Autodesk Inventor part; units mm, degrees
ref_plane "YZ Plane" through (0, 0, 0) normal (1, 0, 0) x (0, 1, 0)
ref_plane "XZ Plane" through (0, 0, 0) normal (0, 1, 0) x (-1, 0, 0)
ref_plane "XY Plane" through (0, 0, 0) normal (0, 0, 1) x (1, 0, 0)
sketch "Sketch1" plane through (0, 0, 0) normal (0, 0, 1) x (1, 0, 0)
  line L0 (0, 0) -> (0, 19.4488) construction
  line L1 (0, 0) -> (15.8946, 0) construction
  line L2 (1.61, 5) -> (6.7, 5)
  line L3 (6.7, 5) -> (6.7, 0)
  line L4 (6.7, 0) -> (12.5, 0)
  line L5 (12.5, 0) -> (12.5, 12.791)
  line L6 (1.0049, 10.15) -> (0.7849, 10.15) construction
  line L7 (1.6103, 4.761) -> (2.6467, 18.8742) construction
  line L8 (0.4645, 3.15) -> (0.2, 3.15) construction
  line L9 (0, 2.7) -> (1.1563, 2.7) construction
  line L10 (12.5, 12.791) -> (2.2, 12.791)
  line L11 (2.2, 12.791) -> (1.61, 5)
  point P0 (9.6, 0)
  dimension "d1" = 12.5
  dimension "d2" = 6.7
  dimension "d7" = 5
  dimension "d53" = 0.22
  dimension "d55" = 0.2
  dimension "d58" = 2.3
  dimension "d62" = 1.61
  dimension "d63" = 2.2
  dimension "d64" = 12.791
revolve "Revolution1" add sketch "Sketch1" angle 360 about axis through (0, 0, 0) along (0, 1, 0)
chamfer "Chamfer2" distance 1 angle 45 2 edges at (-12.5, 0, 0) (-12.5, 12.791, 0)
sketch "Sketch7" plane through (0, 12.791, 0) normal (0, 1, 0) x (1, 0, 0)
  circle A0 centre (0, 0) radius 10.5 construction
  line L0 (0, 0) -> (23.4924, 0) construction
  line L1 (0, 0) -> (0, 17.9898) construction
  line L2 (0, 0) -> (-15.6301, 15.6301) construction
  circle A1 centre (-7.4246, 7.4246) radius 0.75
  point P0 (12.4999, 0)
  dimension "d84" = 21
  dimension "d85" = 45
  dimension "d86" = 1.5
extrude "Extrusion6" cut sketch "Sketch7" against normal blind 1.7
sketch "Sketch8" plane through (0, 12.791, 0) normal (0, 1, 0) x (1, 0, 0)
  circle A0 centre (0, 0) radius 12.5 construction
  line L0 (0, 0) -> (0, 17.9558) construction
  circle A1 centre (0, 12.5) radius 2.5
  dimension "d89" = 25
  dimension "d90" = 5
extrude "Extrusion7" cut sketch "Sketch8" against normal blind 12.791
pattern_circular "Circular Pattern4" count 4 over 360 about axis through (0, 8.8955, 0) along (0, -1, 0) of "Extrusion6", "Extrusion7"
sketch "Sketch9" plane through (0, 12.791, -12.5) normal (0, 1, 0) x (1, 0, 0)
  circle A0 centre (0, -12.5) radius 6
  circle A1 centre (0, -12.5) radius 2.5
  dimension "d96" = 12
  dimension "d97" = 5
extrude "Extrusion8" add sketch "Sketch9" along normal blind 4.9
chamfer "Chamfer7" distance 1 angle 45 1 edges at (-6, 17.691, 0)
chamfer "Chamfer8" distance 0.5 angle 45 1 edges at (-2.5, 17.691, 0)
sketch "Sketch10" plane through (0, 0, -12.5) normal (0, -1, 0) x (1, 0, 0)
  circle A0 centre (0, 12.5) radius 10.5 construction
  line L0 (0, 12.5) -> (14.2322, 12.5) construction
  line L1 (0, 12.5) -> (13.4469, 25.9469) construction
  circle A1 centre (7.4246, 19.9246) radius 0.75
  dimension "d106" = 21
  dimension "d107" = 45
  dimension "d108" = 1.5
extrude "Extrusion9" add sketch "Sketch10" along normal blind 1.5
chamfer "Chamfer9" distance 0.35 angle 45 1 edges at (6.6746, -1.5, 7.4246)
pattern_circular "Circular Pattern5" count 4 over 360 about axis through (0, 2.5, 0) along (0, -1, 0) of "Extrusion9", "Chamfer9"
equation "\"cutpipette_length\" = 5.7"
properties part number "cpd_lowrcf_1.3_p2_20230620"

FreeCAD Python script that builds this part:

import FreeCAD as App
import Part
import Sketcher

V = App.Vector


def edges_at(feature, points):
    """Names of the edges that pass closest to the given points."""
    edges = feature.Shape.Edges
    near = lambda p: min(range(len(edges)), key=lambda i: edges[i].distToShape(Part.Vertex(*p))[0])
    return sorted({f"Edge{near(p) + 1}" for p in points})


def add_polygon(sketch, points):
    """Adds a closed chain of lines whose ends are joined by coincident constraints."""
    first, n = sketch.GeometryCount, len(points)
    for a, b in zip(points, points[1:] + points[:1]):
        sketch.addGeometry(Part.LineSegment(App.Vector(*a, 0), App.Vector(*b, 0)), False)
    for i in range(n):
        sketch.addConstraint(Sketcher.Constraint("Coincident", first + i, 2, first + (i + 1) % n, 1))

doc = App.newDocument("Part")
params = doc.addObject("Spreadsheet::Sheet", "Params")
for row, (alias, value) in enumerate([
    ("sketch1_height", "5 mm"),
    ("revolution_angle", "360 deg"),
    ("chamfer_size", "1 mm"),
    ("sketch2_diameter", "1.5 mm"),
    ("pocket1_length", "1.7 mm"),
    ("sketch3_diameter", "5 mm"),
    ("pocket2_length", "12.791 mm"),
    ("sketch4_diameter", "12 mm"),
    ("sketch4_diameter2", "5 mm"),
    ("pad1_length", "4.9 mm"),
    ("chamfer2_size", "1 mm"),
    ("chamfer3_size", "0.5 mm"),
    ("sketch5_diameter", "1.5 mm"),
    ("pad2_length", "1.5 mm"),
    ("chamfer4_size", "0.35 mm"),
], start=1):
    params.set(f"A{row}", alias)
    params.set(f"B{row}", "=" + value)
    params.setAlias(f"B{row}", alias)

body = doc.addObject("PartDesign::Body", "Body")

sketch1 = body.newObject("Sketcher::SketchObject", "Sketch")
sketch1.AttachmentSupport = (doc.getObject("XY_Plane"), [""])
sketch1.MapMode = "FlatFace"
add_polygon(sketch1, [(2, 13), (2, 5), (7, 5), (7, 0), (12, 0), (12, 13)])
sketch1.addConstraint([
    Sketcher.Constraint("Horizontal", 1),
    Sketcher.Constraint("Vertical", 2),
    Sketcher.Constraint("Horizontal", 3),
    Sketcher.Constraint("Vertical", 4),
    Sketcher.Constraint("Horizontal", 5),
    Sketcher.Constraint("PointOnObject", 2, 2, -1),
    Sketcher.Constraint("DistanceY", 2, 2, 2, 1, 5.0),
    Sketcher.Constraint("DistanceX", -1, 1, 1, 2, 6.7),
    Sketcher.Constraint("DistanceX", -1, 1, 3, 2, 12.5),
    Sketcher.Constraint("DistanceX", -1, 1, 5, 2, 2.2),
    Sketcher.Constraint("DistanceY", 4, 1, 4, 2, 12.791),
    Sketcher.Constraint("DistanceX", -1, 1, 0, 2, 1.61),
])
sketch1.setExpression("Constraints[12]", "Params.sketch1_height")
revolution = body.newObject("PartDesign::Revolution", "Revolution")
revolution.Profile = sketch1
revolution.ReferenceAxis = (sketch1, ["V_Axis"])
revolution.setExpression("Angle", "Params.revolution_angle")
doc.recompute()

chamfer = body.newObject("PartDesign::Chamfer", "Chamfer")
chamfer.Base = (revolution, edges_at(revolution, [(-12.5, 0, 0), (-12.5, 12.791, 0)]))
chamfer.setExpression("Size", "Params.chamfer_size")

sketch2 = body.newObject("Sketcher::SketchObject", "Sketch001")
sketch2.AttachmentSupport = (doc.getObject("XZ_Plane"), [""])
sketch2.MapMode = "FlatFace"
sketch2.AttachmentOffset = App.Placement(V(0, 0, -12.791), App.Rotation())
sketch2.addGeometry(Part.Circle(V(-7.4, -7.4, 0), V(0, 0, 1), 0.8), False)
sketch2.addConstraint([
    Sketcher.Constraint("Diameter", 0, 1.5),
    Sketcher.Constraint("DistanceX", 0, 3, -1, 1, 7.4246),
    Sketcher.Constraint("DistanceY", 0, 3, -1, 1, 7.4246),
])
sketch2.setExpression("Constraints[0]", "Params.sketch2_diameter")
pocket1 = body.newObject("PartDesign::Pocket", "Pocket")
pocket1.Profile = sketch2
pocket1.setExpression("Length", "Params.pocket1_length")
pocket1.Reversed = True

sketch3 = body.newObject("Sketcher::SketchObject", "Sketch002")
sketch3.AttachmentSupport = (doc.getObject("XZ_Plane"), [""])
sketch3.MapMode = "FlatFace"
sketch3.AttachmentOffset = App.Placement(V(0, 0, -12.791), App.Rotation())
sketch3.addGeometry(Part.Circle(V(0, -12.5, 0), V(0, 0, 1), 2.5), False)
sketch3.addConstraint([
    Sketcher.Constraint("PointOnObject", 0, 3, -2),
    Sketcher.Constraint("Diameter", 0, 5.0),
    Sketcher.Constraint("DistanceY", 0, 3, -1, 1, 12.5),
])
sketch3.setExpression("Constraints[1]", "Params.sketch3_diameter")
pocket2 = body.newObject("PartDesign::Pocket", "Pocket001")
pocket2.Profile = sketch3
pocket2.setExpression("Length", "Params.pocket2_length")
pocket2.Reversed = True
doc.recompute()

polarpattern = body.newObject("PartDesign::PolarPattern", "PolarPattern")
polarpattern.Originals = [pocket1, pocket2]
polarpattern.Axis = (doc.getObject("Y_Axis"), [""])
polarpattern.Angle = 360
polarpattern.Occurrences = 4
body.Tip = polarpattern

sketch4 = body.newObject("Sketcher::SketchObject", "Sketch003")
sketch4.AttachmentSupport = (doc.getObject("XZ_Plane"), [""])
sketch4.MapMode = "FlatFace"
sketch4.AttachmentOffset = App.Placement(V(0, 0, -12.791), App.Rotation())
sketch4.addGeometry([
    Part.Circle(V(0, 0, 0), V(0, 0, 1), 6),
    Part.Circle(V(0, 0, 0), V(0, 0, 1), 2.5),
], False)
sketch4.addConstraint([
    Sketcher.Constraint("Coincident", 0, 3, -1, 1),
    Sketcher.Constraint("Coincident", 1, 3, -1, 1),
    Sketcher.Constraint("Diameter", 0, 12.0),
    Sketcher.Constraint("Diameter", 1, 5.0),
])
sketch4.setExpression("Constraints[2]", "Params.sketch4_diameter")
sketch4.setExpression("Constraints[3]", "Params.sketch4_diameter2")
pad1 = body.newObject("PartDesign::Pad", "Pad")
pad1.Profile = sketch4
pad1.setExpression("Length", "Params.pad1_length")
pad1.Reversed = True
doc.recompute()

chamfer2 = body.newObject("PartDesign::Chamfer", "Chamfer001")
chamfer2.Base = (pad1, edges_at(pad1, [(-6, 17.691, 0)]))
chamfer2.setExpression("Size", "Params.chamfer2_size")
doc.recompute()

chamfer3 = body.newObject("PartDesign::Chamfer", "Chamfer002")
chamfer3.Base = (chamfer2, edges_at(chamfer2, [(-2.5, 17.691, 0)]))
chamfer3.setExpression("Size", "Params.chamfer3_size")

sketch5 = body.newObject("Sketcher::SketchObject", "Sketch004")
sketch5.AttachmentSupport = (doc.getObject("XZ_Plane"), [""])
sketch5.MapMode = "FlatFace"
sketch5.addGeometry(Part.Circle(V(7.4, 7.4, 0), V(0, 0, 1), 0.8), False)
sketch5.addConstraint([
    Sketcher.Constraint("Diameter", 0, 1.5),
    Sketcher.Constraint("DistanceX", -1, 1, 0, 3, 7.4246),
    Sketcher.Constraint("DistanceY", -1, 1, 0, 3, 7.4246),
])
sketch5.setExpression("Constraints[0]", "Params.sketch5_diameter")
pad2 = body.newObject("PartDesign::Pad", "Pad001")
pad2.Profile = sketch5
pad2.setExpression("Length", "Params.pad2_length")
doc.recompute()

chamfer4 = body.newObject("PartDesign::Chamfer", "Chamfer003")
chamfer4.Base = (pad2, edges_at(pad2, [(6.675, -1.5, 7.425)]))
chamfer4.setExpression("Size", "Params.chamfer4_size")
doc.recompute()

polarpattern2 = body.newObject("PartDesign::PolarPattern", "PolarPattern001")
polarpattern2.Originals = [pad2, chamfer4]
polarpattern2.Axis = (doc.getObject("Y_Axis"), [""])
polarpattern2.Angle = 360
polarpattern2.Occurrences = 4
body.Tip = polarpattern2

doc.recompute()
